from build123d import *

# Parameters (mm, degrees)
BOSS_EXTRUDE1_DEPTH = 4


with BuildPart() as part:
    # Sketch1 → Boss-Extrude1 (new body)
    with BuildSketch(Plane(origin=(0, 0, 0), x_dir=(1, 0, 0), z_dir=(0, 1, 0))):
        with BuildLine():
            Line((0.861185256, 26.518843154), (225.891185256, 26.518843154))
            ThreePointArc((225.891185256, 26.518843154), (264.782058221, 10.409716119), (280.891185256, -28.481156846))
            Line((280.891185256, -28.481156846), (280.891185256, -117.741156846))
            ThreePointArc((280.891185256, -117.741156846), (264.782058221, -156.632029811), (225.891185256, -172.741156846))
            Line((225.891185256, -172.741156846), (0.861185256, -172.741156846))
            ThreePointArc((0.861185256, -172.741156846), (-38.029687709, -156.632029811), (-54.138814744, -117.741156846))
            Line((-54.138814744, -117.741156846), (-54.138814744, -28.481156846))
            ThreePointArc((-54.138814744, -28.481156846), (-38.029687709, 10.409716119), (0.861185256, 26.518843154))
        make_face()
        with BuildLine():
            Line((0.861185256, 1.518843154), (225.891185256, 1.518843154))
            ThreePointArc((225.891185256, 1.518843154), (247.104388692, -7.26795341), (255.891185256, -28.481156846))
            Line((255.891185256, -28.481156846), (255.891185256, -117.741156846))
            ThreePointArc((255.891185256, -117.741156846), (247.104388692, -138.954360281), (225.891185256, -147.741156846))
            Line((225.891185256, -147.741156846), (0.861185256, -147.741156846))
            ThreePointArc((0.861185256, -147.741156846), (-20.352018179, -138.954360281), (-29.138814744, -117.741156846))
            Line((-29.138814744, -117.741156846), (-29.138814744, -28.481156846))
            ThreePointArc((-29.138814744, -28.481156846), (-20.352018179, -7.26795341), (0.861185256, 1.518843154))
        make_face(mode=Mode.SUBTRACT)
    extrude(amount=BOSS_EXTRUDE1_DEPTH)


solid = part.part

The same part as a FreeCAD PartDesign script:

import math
import FreeCAD as App
import Part
import Sketcher
Q = App.Units.Quantity

doc = App.newDocument("Part")
body = doc.addObject("PartDesign::Body", "Body")

# Sketch on XZ plane
sketch1 = body.newObject("Sketcher::SketchObject", "Sketch")
sketch1.AttachmentSupport = (doc.getObject("XZ_Plane"), [""])
sketch1.MapMode = "FlatFace"
sketch1.addGeometry([
    Part.LineSegment(App.Vector(225.891185, -26.518843, 0), App.Vector(0.861185, -26.518843, 0)),  # 0
    Part.ArcOfCircle(Part.Circle(App.Vector(0.861185, 28.481157, 0), App.Vector(0, 0, 1), 55), math.radians(-180), math.radians(-90)),  # 1
    Part.LineSegment(App.Vector(-54.138815, 28.481157, 0), App.Vector(-54.138815, 117.741157, 0)),  # 2
    Part.ArcOfCircle(Part.Circle(App.Vector(0.861185, 117.741157, 0), App.Vector(0, 0, 1), 55), math.radians(90), math.radians(180)),  # 3
    Part.LineSegment(App.Vector(0.861185, 172.741157, 0), App.Vector(225.891185, 172.741157, 0)),  # 4
    Part.ArcOfCircle(Part.Circle(App.Vector(225.891185, 117.741157, 0), App.Vector(0, 0, 1), 55), math.radians(0), math.radians(90)),  # 5
    Part.LineSegment(App.Vector(280.891185, 117.741157, 0), App.Vector(280.891185, 28.481157, 0)),  # 6
    Part.ArcOfCircle(Part.Circle(App.Vector(225.891185, 28.481157, 0), App.Vector(0, 0, 1), 55), math.radians(-90), math.radians(0)),  # 7
    Part.LineSegment(App.Vector(0.861185, -1.518843, 0), App.Vector(225.891185, -1.518843, 0)),  # 8
    Part.ArcOfCircle(Part.Circle(App.Vector(225.891185, 28.481157, 0), App.Vector(0, 0, 1), 30), math.radians(-90), math.radians(0)),  # 9
    Part.LineSegment(App.Vector(255.891185, 28.481157, 0), App.Vector(255.891185, 117.741157, 0)),  # 10
    Part.ArcOfCircle(Part.Circle(App.Vector(225.891185, 117.741157, 0), App.Vector(0, 0, 1), 30), math.radians(0), math.radians(90)),  # 11
    Part.LineSegment(App.Vector(225.891185, 147.741157, 0), App.Vector(0.861185, 147.741157, 0)),  # 12
    Part.ArcOfCircle(Part.Circle(App.Vector(0.861185, 117.741157, 0), App.Vector(0, 0, 1), 30), math.radians(90), math.radians(180)),  # 13
    Part.LineSegment(App.Vector(-29.138815, 117.741157, 0), App.Vector(-29.138815, 28.481157, 0)),  # 14
    Part.ArcOfCircle(Part.Circle(App.Vector(0.861185, 28.481157, 0), App.Vector(0, 0, 1), 30), math.radians(180), math.radians(270)),  # 15
], False)
sketch1.addConstraint([
    Sketcher.Constraint("Tangent", 0, 2, 1, 2),
    Sketcher.Constraint("Tangent", 1, 1, 2, 1),
    Sketcher.Constraint("Tangent", 2, 2, 3, 2),
    Sketcher.Constraint("Tangent", 3, 1, 4, 1),
    Sketcher.Constraint("Tangent", 4, 2, 5, 2),
    Sketcher.Constraint("Tangent", 5, 1, 6, 1),
    Sketcher.Constraint("Tangent", 6, 2, 7, 2),
    Sketcher.Constraint("Tangent", 7, 1, 0, 1),
    Sketcher.Constraint("Tangent", 8, 2, 9, 1),
    Sketcher.Constraint("Tangent", 9, 2, 10, 1),
    Sketcher.Constraint("Tangent", 10, 2, 11, 1),
    Sketcher.Constraint("Tangent", 11, 2, 12, 1),
    Sketcher.Constraint("Tangent", 12, 2, 13, 1),
    Sketcher.Constraint("Tangent", 13, 2, 14, 1),
    Sketcher.Constraint("Tangent", 14, 2, 15, 1),
    Sketcher.Constraint("Tangent", 15, 2, 8, 1),
    Sketcher.Constraint("Horizontal", 0),
    Sketcher.Constraint("Vertical", 2),
    Sketcher.Constraint("Horizontal", 4),
    Sketcher.Constraint("Vertical", 6),
    Sketcher.Constraint("Horizontal", 8),
    Sketcher.Constraint("Vertical", 10),
    Sketcher.Constraint("Horizontal", 12),
    Sketcher.Constraint("Vertical", 14),
    Sketcher.Constraint("Coincident", 9, 3, 7, 3),
    Sketcher.Constraint("Coincident", 11, 3, 5, 3),
    Sketcher.Constraint("Coincident", 13, 3, 3, 3),
    Sketcher.Constraint("Equal", 1, 3),
    Sketcher.Constraint("Equal", 3, 5),
    Sketcher.Constraint("Equal", 5, 7),
    Sketcher.Constraint("Equal", 13, 15),
    Sketcher.Constraint("Radius", 1, Q("55 mm")),
    Sketcher.Constraint("Radius", 9, Q("30 mm")),
    Sketcher.Constraint("DistanceX", 0, 2, 0, 1, Q("225.03 mm")),
    Sketcher.Constraint("DistanceY", 2, 1, 2, 2, Q("89.26 mm")),
    Sketcher.Constraint("DistanceX", -1, 1, 1, 3, Q("0.861185 mm")),
    Sketcher.Constraint("DistanceY", -1, 1, 1, 3, Q("28.481157 mm")),
])
pad1 = body.newObject("PartDesign::Pad", "Pad")
pad1.Profile = sketch1
pad1.Length = 4
pad1.Reversed = True

doc.recompute()
